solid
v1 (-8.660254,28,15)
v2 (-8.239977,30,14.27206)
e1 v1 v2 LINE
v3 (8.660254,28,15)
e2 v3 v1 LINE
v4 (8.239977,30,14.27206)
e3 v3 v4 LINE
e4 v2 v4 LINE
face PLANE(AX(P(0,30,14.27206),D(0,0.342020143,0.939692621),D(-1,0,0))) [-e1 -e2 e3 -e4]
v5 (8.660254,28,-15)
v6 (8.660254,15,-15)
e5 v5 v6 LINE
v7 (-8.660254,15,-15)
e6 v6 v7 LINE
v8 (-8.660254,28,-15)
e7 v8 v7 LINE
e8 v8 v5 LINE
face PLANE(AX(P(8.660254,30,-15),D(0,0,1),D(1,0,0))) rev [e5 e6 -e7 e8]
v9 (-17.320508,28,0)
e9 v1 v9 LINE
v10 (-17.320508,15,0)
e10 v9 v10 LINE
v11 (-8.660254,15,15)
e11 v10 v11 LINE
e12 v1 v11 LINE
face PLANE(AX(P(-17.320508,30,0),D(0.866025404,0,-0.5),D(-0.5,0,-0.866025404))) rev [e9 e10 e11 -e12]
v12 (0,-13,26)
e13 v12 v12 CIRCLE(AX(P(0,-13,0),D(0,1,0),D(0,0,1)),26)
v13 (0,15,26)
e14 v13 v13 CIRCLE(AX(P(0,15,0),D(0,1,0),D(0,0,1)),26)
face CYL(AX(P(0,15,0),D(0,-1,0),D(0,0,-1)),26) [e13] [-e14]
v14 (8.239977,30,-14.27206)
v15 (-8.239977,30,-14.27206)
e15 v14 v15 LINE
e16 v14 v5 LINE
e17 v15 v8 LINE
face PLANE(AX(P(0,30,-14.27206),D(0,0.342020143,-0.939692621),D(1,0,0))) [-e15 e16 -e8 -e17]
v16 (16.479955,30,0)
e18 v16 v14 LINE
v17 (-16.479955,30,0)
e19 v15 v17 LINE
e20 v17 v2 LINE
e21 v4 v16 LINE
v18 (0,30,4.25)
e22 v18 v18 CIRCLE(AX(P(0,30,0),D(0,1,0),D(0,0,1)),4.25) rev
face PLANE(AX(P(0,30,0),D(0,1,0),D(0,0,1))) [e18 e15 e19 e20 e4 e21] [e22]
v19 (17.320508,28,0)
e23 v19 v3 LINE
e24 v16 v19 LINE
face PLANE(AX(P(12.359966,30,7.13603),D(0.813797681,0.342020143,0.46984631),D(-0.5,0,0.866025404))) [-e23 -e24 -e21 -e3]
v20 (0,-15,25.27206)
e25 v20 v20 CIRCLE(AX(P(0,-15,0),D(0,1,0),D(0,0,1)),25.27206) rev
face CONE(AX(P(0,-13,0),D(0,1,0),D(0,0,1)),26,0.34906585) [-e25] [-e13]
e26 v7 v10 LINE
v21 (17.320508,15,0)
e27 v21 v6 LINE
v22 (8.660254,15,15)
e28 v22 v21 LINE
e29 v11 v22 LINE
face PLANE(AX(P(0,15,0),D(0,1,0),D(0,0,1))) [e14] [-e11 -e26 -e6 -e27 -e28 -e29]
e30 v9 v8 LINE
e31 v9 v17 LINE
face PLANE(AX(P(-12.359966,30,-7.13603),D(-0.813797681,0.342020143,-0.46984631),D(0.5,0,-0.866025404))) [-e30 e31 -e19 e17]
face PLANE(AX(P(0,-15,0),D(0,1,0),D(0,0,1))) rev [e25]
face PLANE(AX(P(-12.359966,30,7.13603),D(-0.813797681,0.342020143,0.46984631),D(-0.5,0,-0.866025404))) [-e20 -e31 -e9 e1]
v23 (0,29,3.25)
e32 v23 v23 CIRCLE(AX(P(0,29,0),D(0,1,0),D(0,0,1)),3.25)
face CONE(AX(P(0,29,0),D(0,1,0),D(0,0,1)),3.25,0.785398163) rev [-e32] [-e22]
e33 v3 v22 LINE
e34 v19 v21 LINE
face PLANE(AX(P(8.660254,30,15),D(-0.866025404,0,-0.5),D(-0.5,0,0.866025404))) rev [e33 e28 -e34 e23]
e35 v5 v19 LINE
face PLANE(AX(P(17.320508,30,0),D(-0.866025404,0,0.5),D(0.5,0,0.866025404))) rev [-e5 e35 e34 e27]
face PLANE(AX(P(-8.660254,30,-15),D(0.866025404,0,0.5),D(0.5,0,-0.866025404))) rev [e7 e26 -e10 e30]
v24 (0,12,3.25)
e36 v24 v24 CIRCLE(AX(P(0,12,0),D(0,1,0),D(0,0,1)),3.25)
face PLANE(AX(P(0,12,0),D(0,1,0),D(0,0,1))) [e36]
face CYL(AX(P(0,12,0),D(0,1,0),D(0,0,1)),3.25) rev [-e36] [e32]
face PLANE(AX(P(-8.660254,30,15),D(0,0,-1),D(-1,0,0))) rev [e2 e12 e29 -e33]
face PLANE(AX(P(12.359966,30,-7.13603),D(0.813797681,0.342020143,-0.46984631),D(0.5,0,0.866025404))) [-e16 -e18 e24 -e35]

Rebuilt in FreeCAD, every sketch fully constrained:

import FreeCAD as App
import Part
import Sketcher
Q = App.Units.Quantity


def edges_at(feature, points):
    """Names of the edges that pass closest to the given points."""
    edges = feature.Shape.Edges
    near = lambda p: min(range(len(edges)), key=lambda i: edges[i].distToShape(Part.Vertex(*p))[0])
    return sorted({f"Edge{near(p) + 1}" for p in points})


def add_polygon(sketch, points):
    """Adds a closed chain of lines whose ends are joined by coincident constraints."""
    first, n = sketch.GeometryCount, len(points)
    for a, b in zip(points, points[1:] + points[:1]):
        sketch.addGeometry(Part.LineSegment(App.Vector(*a, 0), App.Vector(*b, 0)), False)
    for i in range(n):
        sketch.addConstraint(Sketcher.Constraint("Coincident", first + i, 2, first + (i + 1) % n, 1))

doc = App.newDocument("Part")
body = doc.addObject("PartDesign::Body", "Body")

sketch1 = body.newObject("Sketcher::SketchObject", "Sketch")
sketch1.AttachmentSupport = (doc.getObject("XZ_Plane"), [""])
sketch1.MapMode = "FlatFace"
sketch1.addGeometry(Part.Circle(App.Vector(0, 0, 0), App.Vector(0, 0, 1), 26), False)
sketch1.addConstraint([
    Sketcher.Constraint("Coincident", 0, 3, -1, 1),
    Sketcher.Constraint("Diameter", 0, 52.0),
])
pad1 = body.newObject("PartDesign::Pad", "Pad")
pad1.Profile = sketch1
pad1.Length = 30
pad1.Midplane = True

sketch2 = body.newObject("Sketcher::SketchObject", "Sketch001")
sketch2.AttachmentSupport = (doc.getObject("XZ_Plane"), [""])
sketch2.MapMode = "FlatFace"
sketch2.AttachmentOffset = App.Placement(App.Vector(0, 0, -15), App.Rotation())
add_polygon(sketch2, [(-17, 0), (-9, 15), (9, 15), (17, 0), (9, -15), (-9, -15)])
sketch2.addConstraint([
    Sketcher.Constraint("Horizontal", 1),
    Sketcher.Constraint("Horizontal", 4),
    Sketcher.Constraint("Symmetric", 0, 2, 3, 2, -1, 1),
    Sketcher.Constraint("Symmetric", 2, 2, 5, 2, -1, 1),
    Sketcher.Constraint("PointOnObject", 2, 2, -1),
    Sketcher.Constraint("Parallel", 2, 5),
    Sketcher.Constraint("Vertical", 1, 2, 3, 2),
    Sketcher.Constraint("Angle", 0, Q("60 deg")),
    Sketcher.Constraint("DistanceY", -1, 1, 0, 2, 15.0),
    Sketcher.Constraint("DistanceX", 1, 1, 1, 2, 17.320508),
])
pad2 = body.newObject("PartDesign::Pad", "Pad001")
pad2.Profile = sketch2
pad2.Length = 15
pad2.Reversed = True
doc.recompute()

chamfer = body.newObject("PartDesign::Chamfer", "Chamfer")
chamfer.Base = (pad2, edges_at(pad2, [(-12.99, 30, -7.5)]))
chamfer.ChamferType = "Two distances"
chamfer.Size = 2
chamfer.Size2 = 0.72794
doc.recompute()

chamfer2 = body.newObject("PartDesign::Chamfer", "Chamfer001")
chamfer2.Base = (chamfer, edges_at(chamfer, [(-12.78, 30, 7.864)]))
chamfer2.ChamferType = "Two distances"
chamfer2.Size = 2
chamfer2.Size2 = 0.72794
doc.recompute()

chamfer3 = body.newObject("PartDesign::Chamfer", "Chamfer002")
chamfer3.Base = (chamfer2, edges_at(chamfer2, [(0.42, 30, 15)]))
chamfer3.ChamferType = "Two distances"
chamfer3.Size = 2
chamfer3.Size2 = 0.72794
doc.recompute()

chamfer4 = body.newObject("PartDesign::Chamfer", "Chamfer003")
chamfer4.Base = (chamfer3, edges_at(chamfer3, [(13.201, 30, 7.136)]))
chamfer4.ChamferType = "Two distances"
chamfer4.Size = 2
chamfer4.Size2 = 0.72794
doc.recompute()

chamfer5 = body.newObject("PartDesign::Chamfer", "Chamfer004")
chamfer5.Base = (chamfer4, edges_at(chamfer4, [(12.78, 30, -7.864)]))
chamfer5.ChamferType = "Two distances"
chamfer5.Size = 2
chamfer5.Size2 = 0.72794
doc.recompute()

chamfer6 = body.newObject("PartDesign::Chamfer", "Chamfer005")
chamfer6.Base = (chamfer5, edges_at(chamfer5, [(0, 30, -15)]))
chamfer6.ChamferType = "Two distances"
chamfer6.Size = 2
chamfer6.Size2 = 0.72794
doc.recompute()

chamfer7 = body.newObject("PartDesign::Chamfer", "Chamfer006")
chamfer7.Base = (chamfer6, edges_at(chamfer6, [(-26, -15, 0)]))
chamfer7.ChamferType = "Two distances"
chamfer7.Size = 2
chamfer7.Size2 = 0.72794

sketch3 = body.newObject("Sketcher::SketchObject", "Sketch002")
sketch3.AttachmentSupport = (doc.getObject("XZ_Plane"), [""])
sketch3.MapMode = "FlatFace"
sketch3.AttachmentOffset = App.Placement(App.Vector(0, 0, -30), App.Rotation())
sketch3.addGeometry(Part.Circle(App.Vector(0, 0, 0), App.Vector(0, 0, 1), 3.2), False)
sketch3.addConstraint([
    Sketcher.Constraint("Coincident", 0, 3, -1, 1),
    Sketcher.Constraint("Diameter", 0, 6.5),
])
pocket1 = body.newObject("PartDesign::Pocket", "Pocket")
pocket1.Profile = sketch3
pocket1.Length = 18
pocket1.Reversed = True
doc.recompute()

chamfer8 = body.newObject("PartDesign::Chamfer", "Chamfer007")
chamfer8.Base = (pocket1, edges_at(pocket1, [(-3.25, 30, 0)]))
chamfer8.Size = 1

doc.recompute()
